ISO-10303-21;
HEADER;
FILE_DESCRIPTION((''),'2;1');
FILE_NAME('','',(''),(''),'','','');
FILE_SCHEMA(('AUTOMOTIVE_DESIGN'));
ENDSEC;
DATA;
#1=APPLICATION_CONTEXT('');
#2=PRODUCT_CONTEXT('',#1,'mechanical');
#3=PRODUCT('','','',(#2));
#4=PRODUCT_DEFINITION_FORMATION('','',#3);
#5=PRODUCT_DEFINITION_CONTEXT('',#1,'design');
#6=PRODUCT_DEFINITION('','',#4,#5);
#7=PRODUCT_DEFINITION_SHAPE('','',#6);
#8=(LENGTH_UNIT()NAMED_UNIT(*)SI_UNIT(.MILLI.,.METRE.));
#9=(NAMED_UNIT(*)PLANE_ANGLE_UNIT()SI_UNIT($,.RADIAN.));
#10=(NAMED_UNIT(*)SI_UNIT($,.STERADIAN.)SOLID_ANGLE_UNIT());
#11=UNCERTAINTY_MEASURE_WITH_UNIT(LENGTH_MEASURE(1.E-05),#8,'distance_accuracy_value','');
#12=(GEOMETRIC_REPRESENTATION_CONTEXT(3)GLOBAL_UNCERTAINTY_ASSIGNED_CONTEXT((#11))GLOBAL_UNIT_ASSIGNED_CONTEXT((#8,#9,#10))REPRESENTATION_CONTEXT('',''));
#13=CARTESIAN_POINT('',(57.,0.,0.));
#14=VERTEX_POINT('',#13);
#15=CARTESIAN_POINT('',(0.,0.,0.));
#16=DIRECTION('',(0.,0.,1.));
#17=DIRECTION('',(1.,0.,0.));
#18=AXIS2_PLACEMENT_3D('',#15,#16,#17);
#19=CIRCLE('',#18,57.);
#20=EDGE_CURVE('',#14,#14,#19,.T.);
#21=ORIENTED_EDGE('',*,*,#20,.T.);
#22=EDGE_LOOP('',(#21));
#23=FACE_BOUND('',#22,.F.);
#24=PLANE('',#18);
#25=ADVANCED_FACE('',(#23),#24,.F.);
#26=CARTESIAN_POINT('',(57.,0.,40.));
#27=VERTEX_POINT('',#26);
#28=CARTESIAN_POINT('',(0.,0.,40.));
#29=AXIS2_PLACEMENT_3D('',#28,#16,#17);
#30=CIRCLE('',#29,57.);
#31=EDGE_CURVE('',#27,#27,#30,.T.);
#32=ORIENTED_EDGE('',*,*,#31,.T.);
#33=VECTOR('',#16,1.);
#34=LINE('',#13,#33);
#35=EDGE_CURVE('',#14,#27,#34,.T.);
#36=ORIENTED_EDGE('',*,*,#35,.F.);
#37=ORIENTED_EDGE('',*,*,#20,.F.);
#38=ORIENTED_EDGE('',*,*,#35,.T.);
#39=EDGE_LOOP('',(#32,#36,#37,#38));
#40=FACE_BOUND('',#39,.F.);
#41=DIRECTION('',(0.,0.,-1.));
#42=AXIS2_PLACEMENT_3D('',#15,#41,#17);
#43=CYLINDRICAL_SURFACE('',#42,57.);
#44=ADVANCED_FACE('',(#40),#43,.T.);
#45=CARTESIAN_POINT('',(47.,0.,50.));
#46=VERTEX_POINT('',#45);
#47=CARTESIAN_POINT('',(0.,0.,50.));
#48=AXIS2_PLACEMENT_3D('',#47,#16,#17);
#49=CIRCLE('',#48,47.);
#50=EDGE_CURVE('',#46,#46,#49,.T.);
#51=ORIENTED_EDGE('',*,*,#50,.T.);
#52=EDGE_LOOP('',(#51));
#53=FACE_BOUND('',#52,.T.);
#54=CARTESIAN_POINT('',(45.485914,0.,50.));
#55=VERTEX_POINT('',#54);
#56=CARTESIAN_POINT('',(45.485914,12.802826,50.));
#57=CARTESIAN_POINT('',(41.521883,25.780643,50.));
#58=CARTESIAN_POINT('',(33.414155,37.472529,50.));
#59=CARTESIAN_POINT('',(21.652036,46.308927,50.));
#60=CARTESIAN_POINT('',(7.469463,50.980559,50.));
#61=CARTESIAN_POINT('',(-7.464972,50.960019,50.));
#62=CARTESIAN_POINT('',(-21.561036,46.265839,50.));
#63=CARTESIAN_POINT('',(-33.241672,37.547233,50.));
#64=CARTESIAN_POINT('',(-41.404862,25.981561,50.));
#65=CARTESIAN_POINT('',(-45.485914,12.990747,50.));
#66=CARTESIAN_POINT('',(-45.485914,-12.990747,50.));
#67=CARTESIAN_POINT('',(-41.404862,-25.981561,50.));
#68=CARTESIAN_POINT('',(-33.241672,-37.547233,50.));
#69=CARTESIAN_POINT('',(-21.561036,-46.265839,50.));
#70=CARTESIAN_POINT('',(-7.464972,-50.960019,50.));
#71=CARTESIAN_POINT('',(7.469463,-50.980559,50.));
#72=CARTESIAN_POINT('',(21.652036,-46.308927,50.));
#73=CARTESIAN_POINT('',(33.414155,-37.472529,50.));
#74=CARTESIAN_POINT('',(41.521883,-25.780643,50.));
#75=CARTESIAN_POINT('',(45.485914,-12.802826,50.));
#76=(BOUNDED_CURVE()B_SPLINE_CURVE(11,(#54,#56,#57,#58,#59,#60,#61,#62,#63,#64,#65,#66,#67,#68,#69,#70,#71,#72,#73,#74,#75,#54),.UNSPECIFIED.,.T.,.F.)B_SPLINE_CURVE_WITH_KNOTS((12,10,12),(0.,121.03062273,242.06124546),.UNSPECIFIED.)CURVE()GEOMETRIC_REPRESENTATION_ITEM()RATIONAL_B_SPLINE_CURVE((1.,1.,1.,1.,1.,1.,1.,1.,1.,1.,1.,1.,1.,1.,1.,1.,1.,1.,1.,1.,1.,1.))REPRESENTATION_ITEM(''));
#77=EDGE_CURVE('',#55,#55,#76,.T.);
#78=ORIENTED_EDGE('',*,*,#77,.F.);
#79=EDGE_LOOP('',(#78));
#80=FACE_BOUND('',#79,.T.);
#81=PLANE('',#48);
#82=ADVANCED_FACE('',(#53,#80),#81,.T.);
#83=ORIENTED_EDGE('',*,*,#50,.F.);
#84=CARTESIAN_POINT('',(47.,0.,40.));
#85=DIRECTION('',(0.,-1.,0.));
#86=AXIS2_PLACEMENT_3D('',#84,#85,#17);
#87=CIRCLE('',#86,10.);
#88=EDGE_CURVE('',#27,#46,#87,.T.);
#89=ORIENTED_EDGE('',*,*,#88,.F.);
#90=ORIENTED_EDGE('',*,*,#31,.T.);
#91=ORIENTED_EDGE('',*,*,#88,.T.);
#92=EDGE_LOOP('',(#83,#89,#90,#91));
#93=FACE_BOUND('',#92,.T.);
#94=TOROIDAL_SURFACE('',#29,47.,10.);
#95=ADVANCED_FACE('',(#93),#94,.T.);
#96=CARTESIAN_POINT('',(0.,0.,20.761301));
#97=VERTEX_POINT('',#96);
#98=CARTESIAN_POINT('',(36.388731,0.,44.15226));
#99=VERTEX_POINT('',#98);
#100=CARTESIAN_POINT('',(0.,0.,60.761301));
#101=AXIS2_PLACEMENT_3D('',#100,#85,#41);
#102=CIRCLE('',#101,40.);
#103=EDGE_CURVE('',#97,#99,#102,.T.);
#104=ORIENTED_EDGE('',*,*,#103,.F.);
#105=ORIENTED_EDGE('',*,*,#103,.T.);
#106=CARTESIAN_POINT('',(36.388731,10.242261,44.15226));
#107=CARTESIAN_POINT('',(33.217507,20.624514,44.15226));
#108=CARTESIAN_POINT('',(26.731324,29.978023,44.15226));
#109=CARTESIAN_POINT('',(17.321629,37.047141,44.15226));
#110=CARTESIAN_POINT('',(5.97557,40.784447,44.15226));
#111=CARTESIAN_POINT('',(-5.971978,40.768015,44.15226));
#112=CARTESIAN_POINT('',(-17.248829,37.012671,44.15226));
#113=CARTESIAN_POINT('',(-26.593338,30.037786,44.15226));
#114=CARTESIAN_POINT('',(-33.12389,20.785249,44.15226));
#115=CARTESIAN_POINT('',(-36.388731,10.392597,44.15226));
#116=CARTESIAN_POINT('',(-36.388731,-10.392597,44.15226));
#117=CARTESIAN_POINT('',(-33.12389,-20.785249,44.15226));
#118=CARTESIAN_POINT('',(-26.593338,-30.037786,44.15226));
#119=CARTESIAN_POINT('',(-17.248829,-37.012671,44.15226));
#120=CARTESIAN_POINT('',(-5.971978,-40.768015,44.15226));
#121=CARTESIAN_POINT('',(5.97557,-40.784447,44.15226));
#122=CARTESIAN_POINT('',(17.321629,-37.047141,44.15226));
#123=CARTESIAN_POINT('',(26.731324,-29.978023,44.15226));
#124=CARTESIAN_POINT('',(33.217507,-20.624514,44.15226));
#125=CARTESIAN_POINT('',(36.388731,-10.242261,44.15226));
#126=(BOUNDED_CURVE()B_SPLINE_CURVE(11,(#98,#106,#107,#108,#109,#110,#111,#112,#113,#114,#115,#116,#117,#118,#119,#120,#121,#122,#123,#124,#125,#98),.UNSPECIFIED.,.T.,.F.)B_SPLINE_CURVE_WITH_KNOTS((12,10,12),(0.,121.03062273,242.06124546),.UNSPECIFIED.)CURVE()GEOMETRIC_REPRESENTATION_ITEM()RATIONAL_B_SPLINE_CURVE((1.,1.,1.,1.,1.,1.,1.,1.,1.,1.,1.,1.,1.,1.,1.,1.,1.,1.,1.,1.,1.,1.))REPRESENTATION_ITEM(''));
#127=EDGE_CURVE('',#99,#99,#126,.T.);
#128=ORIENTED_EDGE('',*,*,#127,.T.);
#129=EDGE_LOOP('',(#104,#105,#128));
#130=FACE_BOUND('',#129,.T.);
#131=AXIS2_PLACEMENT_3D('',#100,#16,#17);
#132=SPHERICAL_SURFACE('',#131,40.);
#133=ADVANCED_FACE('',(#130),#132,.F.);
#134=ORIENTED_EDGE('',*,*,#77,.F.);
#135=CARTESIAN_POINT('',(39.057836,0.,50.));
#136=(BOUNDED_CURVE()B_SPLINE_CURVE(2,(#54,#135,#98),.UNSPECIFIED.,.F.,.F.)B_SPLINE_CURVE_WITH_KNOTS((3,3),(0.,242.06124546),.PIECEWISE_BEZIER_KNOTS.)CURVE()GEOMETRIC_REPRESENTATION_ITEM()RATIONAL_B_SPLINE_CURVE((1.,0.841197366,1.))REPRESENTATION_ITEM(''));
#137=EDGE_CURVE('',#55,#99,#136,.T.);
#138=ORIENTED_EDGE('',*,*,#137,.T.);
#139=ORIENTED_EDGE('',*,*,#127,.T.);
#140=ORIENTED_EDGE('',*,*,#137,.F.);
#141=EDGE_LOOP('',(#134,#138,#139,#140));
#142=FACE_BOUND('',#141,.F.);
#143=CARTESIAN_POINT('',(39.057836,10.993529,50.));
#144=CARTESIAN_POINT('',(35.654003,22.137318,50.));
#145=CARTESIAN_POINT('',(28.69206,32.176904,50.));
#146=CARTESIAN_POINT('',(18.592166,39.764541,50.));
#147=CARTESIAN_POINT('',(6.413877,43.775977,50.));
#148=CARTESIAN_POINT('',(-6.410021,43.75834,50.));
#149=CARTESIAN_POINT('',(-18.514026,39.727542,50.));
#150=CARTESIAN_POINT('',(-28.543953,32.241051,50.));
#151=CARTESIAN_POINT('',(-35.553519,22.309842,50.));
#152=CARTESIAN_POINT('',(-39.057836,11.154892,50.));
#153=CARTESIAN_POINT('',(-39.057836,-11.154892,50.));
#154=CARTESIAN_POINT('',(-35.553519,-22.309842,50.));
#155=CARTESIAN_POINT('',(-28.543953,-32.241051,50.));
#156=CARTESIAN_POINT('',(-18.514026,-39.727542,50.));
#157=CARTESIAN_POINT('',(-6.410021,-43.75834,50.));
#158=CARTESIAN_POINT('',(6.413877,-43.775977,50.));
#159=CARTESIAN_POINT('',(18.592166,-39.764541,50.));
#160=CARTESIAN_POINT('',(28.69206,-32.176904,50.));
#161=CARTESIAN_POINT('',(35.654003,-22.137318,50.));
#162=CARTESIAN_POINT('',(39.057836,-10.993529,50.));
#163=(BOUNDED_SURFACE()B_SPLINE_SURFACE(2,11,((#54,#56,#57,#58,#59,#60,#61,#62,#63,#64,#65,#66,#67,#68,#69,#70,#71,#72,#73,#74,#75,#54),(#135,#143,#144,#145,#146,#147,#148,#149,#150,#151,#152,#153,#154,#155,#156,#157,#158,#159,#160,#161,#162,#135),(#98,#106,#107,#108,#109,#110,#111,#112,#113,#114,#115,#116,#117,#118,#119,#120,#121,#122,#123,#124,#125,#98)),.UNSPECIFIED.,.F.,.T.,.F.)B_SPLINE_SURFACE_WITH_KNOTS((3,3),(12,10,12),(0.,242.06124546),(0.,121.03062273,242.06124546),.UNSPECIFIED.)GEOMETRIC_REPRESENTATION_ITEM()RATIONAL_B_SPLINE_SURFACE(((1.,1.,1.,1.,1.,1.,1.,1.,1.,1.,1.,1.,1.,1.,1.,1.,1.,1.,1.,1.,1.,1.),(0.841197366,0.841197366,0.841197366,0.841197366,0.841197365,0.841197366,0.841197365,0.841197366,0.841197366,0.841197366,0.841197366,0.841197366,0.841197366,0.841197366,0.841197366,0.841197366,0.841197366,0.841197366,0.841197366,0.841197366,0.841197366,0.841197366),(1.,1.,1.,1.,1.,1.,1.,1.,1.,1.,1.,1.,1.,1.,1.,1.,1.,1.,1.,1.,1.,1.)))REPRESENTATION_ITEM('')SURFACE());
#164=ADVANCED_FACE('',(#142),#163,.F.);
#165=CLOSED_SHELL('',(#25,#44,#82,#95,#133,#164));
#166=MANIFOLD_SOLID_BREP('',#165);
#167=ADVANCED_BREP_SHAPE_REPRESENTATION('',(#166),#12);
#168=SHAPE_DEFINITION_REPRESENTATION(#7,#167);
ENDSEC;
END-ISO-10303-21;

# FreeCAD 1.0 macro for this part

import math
import FreeCAD as App
import Part
import Sketcher
Q = App.Units.Quantity


def edges_at(feature, points):
    """Names of the edges that pass closest to the given points."""
    edges = feature.Shape.Edges
    near = lambda p: min(range(len(edges)), key=lambda i: edges[i].distToShape(Part.Vertex(*p))[0])
    return sorted({f"Edge{near(p) + 1}" for p in points})

doc = App.newDocument("Part")
body = doc.addObject("PartDesign::Body", "Body")

sketch1 = body.newObject("Sketcher::SketchObject", "Sketch")
sketch1.AttachmentSupport = (doc.getObject("XY_Plane"), [""])
sketch1.MapMode = "FlatFace"
sketch1.addGeometry(Part.Circle(App.Vector(0, 0, 0), App.Vector(0, 0, 1), 57), False)
sketch1.addConstraint([
    Sketcher.Constraint("Coincident", 0, 3, -1, 1),
    Sketcher.Constraint("Diameter", 0, Q("114 mm")),
])
pad1 = body.newObject("PartDesign::Pad", "Pad")
pad1.Profile = sketch1
pad1.Length = 50

sketch2 = body.newObject("Sketcher::SketchObject", "Sketch001")
sketch2.AttachmentSupport = (doc.getObject("XZ_Plane"), [""])
sketch2.MapMode = "FlatFace"
sketch2.addGeometry([
    Part.LineSegment(App.Vector(0, 101, 0), App.Vector(0, 21, 0)),
    Part.ArcOfCircle(Part.Circle(App.Vector(0, 61, 0), App.Vector(0, 0, 1), 40), math.radians(-90), math.radians(90)),
], False)
sketch2.addConstraint([
    Sketcher.Constraint("Coincident", 0, 1, 1, 2),
    Sketcher.Constraint("Coincident", 1, 1, 0, 2),
    Sketcher.Constraint("Vertical", 0),
    Sketcher.Constraint("PointOnObject", 1, 3, -2),
    Sketcher.Constraint("PointOnObject", 0, 1, -2),
    Sketcher.Constraint("Radius", 1, Q("40 mm")),
    Sketcher.Constraint("DistanceY", -1, 1, 1, 3, Q("60.761301 mm")),
])
groove = body.newObject("PartDesign::Groove", "Groove")
groove.Profile = sketch2
groove.ReferenceAxis = (sketch2, ["V_Axis"])
groove.Angle = 360
doc.recompute()

fillet = body.newObject("PartDesign::Fillet", "Fillet")
fillet.Base = (groove, edges_at(groove, [(-57, 0, 50), (-38.525, 0, 50)]))
fillet.Radius = 10

doc.recompute()
